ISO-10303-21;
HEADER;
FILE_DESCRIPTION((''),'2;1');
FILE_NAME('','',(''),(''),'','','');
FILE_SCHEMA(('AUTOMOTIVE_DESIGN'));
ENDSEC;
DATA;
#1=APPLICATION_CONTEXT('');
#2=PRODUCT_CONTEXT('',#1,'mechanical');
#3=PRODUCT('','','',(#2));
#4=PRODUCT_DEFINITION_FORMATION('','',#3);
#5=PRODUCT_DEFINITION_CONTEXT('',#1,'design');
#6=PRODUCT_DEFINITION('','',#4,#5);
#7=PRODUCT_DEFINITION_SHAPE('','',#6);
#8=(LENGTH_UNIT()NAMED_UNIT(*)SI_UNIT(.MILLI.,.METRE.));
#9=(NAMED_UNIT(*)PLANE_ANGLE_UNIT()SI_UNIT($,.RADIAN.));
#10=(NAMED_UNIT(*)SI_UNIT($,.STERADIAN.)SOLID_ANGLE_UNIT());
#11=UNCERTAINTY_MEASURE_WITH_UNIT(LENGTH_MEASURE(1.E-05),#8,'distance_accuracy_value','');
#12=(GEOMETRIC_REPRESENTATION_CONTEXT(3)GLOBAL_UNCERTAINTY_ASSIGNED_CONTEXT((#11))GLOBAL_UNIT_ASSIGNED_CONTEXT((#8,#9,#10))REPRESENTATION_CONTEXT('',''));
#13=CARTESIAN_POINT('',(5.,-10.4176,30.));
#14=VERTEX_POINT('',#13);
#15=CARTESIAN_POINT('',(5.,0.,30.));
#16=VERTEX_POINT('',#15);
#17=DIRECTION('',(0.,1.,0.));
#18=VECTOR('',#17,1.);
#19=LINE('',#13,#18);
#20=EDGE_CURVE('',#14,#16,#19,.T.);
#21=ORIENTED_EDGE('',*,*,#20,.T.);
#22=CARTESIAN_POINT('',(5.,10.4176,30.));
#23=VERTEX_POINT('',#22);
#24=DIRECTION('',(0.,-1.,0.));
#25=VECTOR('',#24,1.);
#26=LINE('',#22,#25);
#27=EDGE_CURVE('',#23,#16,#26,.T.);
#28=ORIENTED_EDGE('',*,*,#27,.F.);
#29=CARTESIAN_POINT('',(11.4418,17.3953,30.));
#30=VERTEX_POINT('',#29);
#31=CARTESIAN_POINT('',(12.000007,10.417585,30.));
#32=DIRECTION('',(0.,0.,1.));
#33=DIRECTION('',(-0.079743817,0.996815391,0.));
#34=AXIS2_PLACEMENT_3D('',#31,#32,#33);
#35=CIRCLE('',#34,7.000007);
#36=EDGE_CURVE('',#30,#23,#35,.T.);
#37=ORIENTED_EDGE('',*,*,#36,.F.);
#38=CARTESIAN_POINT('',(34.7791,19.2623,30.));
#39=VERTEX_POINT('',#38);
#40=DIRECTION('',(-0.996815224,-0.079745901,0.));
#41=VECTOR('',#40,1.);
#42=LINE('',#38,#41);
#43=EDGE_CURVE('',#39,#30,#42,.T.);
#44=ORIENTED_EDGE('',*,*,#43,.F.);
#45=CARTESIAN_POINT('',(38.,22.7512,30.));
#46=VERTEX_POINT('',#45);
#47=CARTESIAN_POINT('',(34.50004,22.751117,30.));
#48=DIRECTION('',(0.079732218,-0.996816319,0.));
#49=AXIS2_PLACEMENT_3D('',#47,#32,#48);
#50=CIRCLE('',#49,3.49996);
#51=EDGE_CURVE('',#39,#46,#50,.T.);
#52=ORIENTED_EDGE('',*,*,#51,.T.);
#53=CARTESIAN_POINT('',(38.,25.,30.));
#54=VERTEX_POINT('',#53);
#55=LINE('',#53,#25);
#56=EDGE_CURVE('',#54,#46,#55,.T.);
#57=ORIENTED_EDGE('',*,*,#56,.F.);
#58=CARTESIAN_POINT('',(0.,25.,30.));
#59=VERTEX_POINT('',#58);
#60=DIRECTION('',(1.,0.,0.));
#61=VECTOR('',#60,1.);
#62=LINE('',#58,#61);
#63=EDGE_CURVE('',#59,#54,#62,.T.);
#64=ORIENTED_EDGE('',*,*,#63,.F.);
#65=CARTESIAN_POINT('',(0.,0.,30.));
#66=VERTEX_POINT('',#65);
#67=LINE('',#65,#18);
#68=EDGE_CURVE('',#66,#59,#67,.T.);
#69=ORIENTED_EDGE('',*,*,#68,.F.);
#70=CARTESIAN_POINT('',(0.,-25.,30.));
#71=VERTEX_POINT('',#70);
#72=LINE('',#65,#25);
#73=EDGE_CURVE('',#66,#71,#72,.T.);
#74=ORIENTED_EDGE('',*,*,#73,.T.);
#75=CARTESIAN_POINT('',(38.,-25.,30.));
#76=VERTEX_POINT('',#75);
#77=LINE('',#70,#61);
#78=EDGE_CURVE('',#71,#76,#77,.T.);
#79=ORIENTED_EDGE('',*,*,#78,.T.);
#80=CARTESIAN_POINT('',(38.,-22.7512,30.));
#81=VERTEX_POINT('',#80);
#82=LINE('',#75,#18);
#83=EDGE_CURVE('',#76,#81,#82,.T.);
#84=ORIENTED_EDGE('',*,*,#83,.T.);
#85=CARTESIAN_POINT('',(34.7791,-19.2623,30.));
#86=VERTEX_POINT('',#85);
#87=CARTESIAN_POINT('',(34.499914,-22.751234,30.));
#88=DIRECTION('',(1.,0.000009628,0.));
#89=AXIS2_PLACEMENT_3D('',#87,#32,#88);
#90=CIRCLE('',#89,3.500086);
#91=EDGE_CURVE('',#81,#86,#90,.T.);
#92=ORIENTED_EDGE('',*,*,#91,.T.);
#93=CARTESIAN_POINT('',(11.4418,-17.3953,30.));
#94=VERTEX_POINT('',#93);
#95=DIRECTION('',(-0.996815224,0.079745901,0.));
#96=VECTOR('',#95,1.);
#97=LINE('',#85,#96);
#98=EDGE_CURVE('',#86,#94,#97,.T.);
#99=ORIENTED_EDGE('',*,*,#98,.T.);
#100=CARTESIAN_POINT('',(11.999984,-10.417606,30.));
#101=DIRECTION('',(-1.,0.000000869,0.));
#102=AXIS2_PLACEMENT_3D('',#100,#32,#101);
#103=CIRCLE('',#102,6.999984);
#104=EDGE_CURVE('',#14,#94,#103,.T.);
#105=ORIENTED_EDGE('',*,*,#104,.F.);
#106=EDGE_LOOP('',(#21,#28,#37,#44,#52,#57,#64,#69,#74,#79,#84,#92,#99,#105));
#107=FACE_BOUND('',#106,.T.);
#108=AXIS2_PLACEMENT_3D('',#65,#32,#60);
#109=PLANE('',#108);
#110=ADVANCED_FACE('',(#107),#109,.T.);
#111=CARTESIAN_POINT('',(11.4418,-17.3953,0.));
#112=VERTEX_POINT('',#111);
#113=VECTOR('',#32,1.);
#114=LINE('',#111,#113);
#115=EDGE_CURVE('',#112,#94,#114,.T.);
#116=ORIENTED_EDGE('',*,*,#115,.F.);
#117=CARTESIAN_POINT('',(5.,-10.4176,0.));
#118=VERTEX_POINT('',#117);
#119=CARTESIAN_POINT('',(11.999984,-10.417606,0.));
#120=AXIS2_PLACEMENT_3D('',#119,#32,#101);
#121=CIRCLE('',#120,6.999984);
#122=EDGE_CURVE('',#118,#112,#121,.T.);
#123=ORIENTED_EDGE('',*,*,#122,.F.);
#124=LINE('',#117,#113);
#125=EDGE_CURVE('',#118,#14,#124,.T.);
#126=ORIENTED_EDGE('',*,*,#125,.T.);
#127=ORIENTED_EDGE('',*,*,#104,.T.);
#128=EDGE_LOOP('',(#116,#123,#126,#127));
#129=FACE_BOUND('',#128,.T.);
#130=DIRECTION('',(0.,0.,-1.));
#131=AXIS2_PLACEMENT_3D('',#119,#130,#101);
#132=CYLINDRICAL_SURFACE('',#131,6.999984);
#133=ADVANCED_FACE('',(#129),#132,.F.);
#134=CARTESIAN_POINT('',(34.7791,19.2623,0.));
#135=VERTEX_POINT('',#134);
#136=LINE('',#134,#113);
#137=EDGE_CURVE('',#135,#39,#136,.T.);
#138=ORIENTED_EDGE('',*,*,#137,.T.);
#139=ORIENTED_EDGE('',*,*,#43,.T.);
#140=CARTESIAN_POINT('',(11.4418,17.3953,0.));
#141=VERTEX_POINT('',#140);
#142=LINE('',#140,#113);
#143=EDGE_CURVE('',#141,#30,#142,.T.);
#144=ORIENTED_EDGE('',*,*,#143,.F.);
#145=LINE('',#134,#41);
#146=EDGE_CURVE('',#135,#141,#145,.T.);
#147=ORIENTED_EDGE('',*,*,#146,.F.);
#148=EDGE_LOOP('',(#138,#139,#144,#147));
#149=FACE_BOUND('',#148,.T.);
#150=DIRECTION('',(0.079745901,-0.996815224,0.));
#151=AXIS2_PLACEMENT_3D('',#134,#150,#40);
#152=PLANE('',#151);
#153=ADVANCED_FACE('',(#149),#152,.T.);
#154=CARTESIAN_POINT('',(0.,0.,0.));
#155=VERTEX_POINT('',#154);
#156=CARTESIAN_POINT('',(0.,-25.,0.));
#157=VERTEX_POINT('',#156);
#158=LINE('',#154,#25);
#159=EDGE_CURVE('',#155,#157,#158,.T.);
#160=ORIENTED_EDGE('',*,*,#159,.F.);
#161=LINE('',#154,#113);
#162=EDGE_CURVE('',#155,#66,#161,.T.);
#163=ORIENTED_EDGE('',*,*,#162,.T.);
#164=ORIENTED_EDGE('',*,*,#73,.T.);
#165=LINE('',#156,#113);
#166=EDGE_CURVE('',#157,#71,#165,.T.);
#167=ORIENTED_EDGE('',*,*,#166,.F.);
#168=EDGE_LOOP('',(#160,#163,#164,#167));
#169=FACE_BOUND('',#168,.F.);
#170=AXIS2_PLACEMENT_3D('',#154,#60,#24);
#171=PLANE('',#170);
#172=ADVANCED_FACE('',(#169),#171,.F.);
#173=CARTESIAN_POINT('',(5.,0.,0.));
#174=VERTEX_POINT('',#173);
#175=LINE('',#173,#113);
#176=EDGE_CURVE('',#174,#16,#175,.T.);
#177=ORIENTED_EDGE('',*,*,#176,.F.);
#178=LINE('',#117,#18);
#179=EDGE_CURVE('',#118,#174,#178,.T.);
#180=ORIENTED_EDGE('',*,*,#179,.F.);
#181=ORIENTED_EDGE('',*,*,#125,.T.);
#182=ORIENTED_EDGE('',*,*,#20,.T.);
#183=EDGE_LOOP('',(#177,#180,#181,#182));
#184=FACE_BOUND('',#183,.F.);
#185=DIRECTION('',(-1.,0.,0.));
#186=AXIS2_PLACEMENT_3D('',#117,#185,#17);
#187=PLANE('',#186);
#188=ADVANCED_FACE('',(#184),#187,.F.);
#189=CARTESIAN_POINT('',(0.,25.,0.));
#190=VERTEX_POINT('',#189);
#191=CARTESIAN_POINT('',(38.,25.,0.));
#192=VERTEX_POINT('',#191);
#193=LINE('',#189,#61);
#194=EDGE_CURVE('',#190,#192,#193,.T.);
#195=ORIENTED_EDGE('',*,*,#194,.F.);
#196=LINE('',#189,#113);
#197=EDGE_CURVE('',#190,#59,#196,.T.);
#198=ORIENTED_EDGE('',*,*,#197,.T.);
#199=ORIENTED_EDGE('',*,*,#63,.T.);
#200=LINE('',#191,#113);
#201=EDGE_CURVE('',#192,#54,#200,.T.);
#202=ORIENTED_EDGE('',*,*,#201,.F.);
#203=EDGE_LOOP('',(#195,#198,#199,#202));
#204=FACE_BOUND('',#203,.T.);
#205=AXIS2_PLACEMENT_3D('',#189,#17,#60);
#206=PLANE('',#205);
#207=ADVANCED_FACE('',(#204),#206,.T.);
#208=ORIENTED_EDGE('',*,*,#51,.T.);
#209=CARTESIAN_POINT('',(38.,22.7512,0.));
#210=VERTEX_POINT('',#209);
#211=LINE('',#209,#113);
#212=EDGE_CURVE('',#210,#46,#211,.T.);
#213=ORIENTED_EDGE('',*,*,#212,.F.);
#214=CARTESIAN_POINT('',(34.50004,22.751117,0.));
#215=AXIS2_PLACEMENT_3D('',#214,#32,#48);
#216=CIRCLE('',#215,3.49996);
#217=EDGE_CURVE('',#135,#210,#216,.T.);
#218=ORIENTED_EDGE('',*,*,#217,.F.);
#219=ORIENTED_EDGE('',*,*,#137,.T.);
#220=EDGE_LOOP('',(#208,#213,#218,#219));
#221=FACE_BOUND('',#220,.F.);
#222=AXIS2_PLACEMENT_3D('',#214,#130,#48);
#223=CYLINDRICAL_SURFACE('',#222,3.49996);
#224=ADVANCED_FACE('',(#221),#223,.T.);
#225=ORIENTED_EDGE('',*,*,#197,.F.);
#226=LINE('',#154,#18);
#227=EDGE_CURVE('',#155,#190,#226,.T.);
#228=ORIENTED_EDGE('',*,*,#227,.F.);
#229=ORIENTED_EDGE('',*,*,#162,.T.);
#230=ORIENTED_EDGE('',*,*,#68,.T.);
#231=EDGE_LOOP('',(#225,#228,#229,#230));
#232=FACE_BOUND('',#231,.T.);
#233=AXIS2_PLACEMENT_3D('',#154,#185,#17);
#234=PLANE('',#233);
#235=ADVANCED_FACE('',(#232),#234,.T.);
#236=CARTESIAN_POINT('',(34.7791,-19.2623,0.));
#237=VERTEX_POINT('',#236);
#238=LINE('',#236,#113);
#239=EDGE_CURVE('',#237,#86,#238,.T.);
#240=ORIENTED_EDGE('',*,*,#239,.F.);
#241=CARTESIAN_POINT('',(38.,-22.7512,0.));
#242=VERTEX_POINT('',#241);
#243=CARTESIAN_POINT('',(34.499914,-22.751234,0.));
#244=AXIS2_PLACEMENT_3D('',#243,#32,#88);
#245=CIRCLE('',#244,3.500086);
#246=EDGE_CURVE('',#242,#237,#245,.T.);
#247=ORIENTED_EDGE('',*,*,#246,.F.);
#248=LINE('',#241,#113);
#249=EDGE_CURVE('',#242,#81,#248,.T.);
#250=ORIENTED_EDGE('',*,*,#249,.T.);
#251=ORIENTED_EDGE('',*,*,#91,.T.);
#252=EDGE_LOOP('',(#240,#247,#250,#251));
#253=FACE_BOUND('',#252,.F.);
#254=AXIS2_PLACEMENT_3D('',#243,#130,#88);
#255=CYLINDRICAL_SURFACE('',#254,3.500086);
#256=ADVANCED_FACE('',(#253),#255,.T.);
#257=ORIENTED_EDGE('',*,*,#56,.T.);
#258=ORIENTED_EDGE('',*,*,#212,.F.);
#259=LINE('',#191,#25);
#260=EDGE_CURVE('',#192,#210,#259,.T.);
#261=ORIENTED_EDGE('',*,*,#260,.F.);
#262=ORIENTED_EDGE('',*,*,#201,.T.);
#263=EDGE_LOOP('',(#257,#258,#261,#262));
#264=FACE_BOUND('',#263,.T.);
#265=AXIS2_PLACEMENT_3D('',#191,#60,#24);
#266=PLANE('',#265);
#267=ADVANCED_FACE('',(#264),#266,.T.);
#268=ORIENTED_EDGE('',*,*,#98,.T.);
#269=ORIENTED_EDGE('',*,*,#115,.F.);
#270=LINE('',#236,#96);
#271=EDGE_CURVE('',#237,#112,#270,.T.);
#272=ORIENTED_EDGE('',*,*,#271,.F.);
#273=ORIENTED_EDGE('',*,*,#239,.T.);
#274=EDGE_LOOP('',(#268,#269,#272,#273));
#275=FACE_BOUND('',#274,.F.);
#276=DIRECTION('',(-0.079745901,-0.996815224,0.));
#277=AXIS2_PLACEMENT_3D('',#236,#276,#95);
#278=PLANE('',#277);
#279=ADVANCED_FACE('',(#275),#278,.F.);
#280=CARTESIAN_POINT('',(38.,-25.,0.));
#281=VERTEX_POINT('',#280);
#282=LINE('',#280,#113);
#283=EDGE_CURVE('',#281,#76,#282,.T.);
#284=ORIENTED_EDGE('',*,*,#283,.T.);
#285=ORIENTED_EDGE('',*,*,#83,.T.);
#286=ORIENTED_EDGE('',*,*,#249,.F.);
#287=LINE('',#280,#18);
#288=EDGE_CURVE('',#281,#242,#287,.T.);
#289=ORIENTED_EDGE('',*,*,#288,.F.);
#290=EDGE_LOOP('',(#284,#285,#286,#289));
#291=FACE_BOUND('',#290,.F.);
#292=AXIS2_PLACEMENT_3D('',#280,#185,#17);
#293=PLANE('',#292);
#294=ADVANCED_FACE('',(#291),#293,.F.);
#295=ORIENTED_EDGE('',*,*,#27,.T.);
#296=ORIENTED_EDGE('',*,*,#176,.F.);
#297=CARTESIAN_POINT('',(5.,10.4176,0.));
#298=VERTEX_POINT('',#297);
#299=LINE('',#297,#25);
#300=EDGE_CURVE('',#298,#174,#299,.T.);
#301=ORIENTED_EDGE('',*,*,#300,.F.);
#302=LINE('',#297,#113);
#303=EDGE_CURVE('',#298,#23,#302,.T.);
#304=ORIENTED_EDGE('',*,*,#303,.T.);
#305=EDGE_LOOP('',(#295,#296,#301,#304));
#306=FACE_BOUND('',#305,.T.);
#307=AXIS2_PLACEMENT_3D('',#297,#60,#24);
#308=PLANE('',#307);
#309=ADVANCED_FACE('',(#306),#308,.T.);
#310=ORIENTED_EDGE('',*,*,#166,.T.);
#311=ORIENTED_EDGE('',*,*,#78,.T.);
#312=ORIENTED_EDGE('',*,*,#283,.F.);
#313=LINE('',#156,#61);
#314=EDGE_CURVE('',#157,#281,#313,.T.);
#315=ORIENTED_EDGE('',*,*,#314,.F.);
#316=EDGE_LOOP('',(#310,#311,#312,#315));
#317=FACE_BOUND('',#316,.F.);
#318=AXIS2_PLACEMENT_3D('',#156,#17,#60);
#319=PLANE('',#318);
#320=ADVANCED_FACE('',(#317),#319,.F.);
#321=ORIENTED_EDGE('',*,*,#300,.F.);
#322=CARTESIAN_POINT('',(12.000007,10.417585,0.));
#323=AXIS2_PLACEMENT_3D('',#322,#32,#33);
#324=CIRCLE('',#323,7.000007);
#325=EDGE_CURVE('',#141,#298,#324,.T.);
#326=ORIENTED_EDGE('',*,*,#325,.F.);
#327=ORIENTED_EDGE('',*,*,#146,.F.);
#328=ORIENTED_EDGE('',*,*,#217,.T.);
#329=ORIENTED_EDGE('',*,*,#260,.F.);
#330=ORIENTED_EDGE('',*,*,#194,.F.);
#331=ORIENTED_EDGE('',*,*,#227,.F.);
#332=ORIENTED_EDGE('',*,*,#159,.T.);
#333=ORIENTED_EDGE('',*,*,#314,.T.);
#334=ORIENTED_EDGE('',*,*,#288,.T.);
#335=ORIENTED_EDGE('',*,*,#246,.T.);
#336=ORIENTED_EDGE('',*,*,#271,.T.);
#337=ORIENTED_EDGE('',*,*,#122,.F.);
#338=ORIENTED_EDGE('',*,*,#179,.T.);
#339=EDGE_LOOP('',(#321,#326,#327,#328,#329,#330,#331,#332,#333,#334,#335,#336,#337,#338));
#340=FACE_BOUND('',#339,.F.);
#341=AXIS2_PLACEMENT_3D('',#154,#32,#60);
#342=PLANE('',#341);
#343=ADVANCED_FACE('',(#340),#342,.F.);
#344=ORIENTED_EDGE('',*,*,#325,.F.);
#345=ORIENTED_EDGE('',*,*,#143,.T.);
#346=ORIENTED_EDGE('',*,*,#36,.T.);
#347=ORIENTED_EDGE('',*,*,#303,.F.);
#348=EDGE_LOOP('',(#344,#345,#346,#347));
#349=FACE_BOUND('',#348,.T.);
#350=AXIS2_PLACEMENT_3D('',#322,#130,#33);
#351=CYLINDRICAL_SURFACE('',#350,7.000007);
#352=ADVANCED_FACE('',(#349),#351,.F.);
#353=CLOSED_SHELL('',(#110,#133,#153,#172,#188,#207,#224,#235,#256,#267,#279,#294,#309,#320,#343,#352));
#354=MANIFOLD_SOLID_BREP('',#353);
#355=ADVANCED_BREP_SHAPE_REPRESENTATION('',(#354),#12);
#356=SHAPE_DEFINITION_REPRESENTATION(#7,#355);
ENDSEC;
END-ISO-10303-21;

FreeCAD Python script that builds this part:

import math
import FreeCAD as App
import Part
import Sketcher
from FreeCAD import Vector

doc = App.newDocument("Part")
params = doc.addObject("Spreadsheet::Sheet", "Params")
for row, (alias, value) in enumerate([
    ("sketch1_radius", "7 mm"),
    ("sketch1_radius2", "3.5 mm"),
    ("sketch1_width", "38 mm"),
    ("pad1_length", "30 mm"),
], start=1):
    params.set(f"A{row}", alias)
    params.set(f"B{row}", "=" + value)
    params.setAlias(f"B{row}", alias)

body = doc.addObject("PartDesign::Body", "Body")

sketch1 = doc.addObject("Sketcher::SketchObject", "Sketch")
body.addObject(sketch1)
sketch1.AttachmentSupport = (doc.XY_Plane, [""])
sketch1.MapMode = "FlatFace"
sketch1.addGeometry([
    Part.LineSegment(Vector(0, 25, 0), Vector(0, -25, 0)),
    Part.LineSegment(Vector(0, -25, 0), Vector(38, -25, 0)),
    Part.LineSegment(Vector(38, -25, 0), Vector(38, -22.8, 0)),
    Part.ArcOfCircle(Part.Circle(Vector(34.5, -22.8, 0), Vector(0, 0, 1), 3.5), math.radians(0), math.radians(85)),
    Part.LineSegment(Vector(34.8, -19.3, 0), Vector(11.4, -17.4, 0)),
    Part.ArcOfCircle(Part.Circle(Vector(12, -10.4, 0), Vector(0, 0, 1), 7), math.radians(180), math.radians(265)),
    Part.LineSegment(Vector(5, -10.4, 0), Vector(5, 10.4, 0)),
    Part.ArcOfCircle(Part.Circle(Vector(12, 10.4, 0), Vector(0, 0, 1), 7), math.radians(95), math.radians(180)),
    Part.LineSegment(Vector(11.4, 17.4, 0), Vector(34.8, 19.3, 0)),
    Part.ArcOfCircle(Part.Circle(Vector(34.5, 22.8, 0), Vector(0, 0, 1), 3.5), math.radians(-85), math.radians(0)),
    Part.LineSegment(Vector(38, 22.8, 0), Vector(38, 25, 0)),
    Part.LineSegment(Vector(38, 25, 0), Vector(0, 25, 0)),
], False)
sketch1.addConstraint([
    Sketcher.Constraint("Coincident", 0, 2, 1, 1),
    Sketcher.Constraint("Coincident", 1, 2, 2, 1),
    Sketcher.Constraint("Tangent", 2, 2, 3, 1),
    Sketcher.Constraint("Tangent", 3, 2, 4, 1),
    Sketcher.Constraint("Tangent", 4, 2, 5, 2),
    Sketcher.Constraint("Tangent", 5, 1, 6, 1),
    Sketcher.Constraint("Tangent", 6, 2, 7, 2),
    Sketcher.Constraint("Tangent", 7, 1, 8, 1),
    Sketcher.Constraint("Tangent", 8, 2, 9, 1),
    Sketcher.Constraint("Tangent", 9, 2, 10, 1),
    Sketcher.Constraint("Coincident", 10, 2, 11, 1),
    Sketcher.Constraint("Coincident", 11, 2, 0, 1),
    Sketcher.Constraint("Vertical", 0),
    Sketcher.Constraint("Horizontal", 1),
    Sketcher.Constraint("Vertical", 2),
    Sketcher.Constraint("Vertical", 6),
    Sketcher.Constraint("Vertical", 10),
    Sketcher.Constraint("Horizontal", 11),
    Sketcher.Constraint("Equal", 5, 7),
    Sketcher.Constraint("Equal", 3, 9),
    Sketcher.Constraint("Symmetric", 0, 2, 11, 2, -1, 1),
    Sketcher.Constraint("Symmetric", 3, 3, 9, 3, -1),
    Sketcher.Constraint("Vertical", 4, 2, 7, 1),
    Sketcher.Constraint("Radius", 5, 7.0),
    Sketcher.Constraint("Radius", 3, 3.5),
    Sketcher.Constraint("DistanceX", 1, 1, 1, 2, 38.0),
    Sketcher.Constraint("DistanceY", 0, 2, -1, 1, 25.0),
    Sketcher.Constraint("DistanceX", -1, 1, 5, 1, 5.0),
    Sketcher.Constraint("DistanceY", 5, 3, 8, 2, 29.68),
    Sketcher.Constraint("DistanceY", 2, 1, 2, 2, 2.2488),
])
sketch1.setExpression("Constraints[23]", "Params.sketch1_radius")
sketch1.setExpression("Constraints[24]", "Params.sketch1_radius2")
sketch1.setExpression("Constraints[25]", "Params.sketch1_width")
pad1 = doc.addObject("PartDesign::Pad", "Pad")
body.addObject(pad1)
pad1.Profile = sketch1
pad1.setExpression("Length", "Params.pad1_length")

doc.recompute()
